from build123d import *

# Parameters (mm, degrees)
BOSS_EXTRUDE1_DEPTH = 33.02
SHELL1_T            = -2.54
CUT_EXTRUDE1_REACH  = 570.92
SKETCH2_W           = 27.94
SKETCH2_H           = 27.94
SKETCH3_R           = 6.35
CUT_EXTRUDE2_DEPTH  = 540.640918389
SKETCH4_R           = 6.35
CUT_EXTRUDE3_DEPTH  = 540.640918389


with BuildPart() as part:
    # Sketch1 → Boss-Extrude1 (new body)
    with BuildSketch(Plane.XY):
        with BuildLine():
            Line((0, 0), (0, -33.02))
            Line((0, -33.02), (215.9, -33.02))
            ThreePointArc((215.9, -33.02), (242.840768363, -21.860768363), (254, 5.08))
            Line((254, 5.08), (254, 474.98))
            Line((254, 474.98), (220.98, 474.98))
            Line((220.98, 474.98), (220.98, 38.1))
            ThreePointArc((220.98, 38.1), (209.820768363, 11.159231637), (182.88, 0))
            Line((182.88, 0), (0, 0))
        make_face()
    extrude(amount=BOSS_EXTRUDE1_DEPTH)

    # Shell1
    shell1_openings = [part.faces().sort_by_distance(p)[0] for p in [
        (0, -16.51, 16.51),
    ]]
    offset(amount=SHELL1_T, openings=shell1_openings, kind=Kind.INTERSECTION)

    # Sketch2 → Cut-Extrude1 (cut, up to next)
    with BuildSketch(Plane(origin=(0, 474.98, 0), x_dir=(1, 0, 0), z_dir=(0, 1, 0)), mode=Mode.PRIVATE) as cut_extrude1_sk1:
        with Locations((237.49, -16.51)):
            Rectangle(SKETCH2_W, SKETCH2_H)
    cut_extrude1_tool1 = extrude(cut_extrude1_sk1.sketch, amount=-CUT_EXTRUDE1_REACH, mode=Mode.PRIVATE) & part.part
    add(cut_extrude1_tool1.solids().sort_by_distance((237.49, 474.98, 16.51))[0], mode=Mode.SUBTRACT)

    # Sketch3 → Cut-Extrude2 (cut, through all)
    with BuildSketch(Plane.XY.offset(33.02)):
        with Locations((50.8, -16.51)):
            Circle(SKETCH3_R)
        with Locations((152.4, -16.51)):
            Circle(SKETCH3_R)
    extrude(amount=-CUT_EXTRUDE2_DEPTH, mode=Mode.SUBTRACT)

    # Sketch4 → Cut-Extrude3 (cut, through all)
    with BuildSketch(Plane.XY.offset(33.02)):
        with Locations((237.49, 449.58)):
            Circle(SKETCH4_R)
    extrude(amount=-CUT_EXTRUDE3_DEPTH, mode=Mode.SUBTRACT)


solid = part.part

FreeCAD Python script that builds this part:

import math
import FreeCAD as App
import Part
import Sketcher
Q = App.Units.Quantity


def faces_at(feature, points):
    """Names of the faces that lie closest to the given points."""
    faces = feature.Shape.Faces
    near = lambda p: min(range(len(faces)), key=lambda i: faces[i].distToShape(Part.Vertex(*p))[0])
    return sorted({f"Face{near(p) + 1}" for p in points})


def add_polygon(sketch, points):
    """Adds a closed chain of lines whose ends are joined by coincident constraints."""
    first, n = sketch.GeometryCount, len(points)
    for a, b in zip(points, points[1:] + points[:1]):
        sketch.addGeometry(Part.LineSegment(App.Vector(*a, 0), App.Vector(*b, 0)), False)
    for i in range(n):
        sketch.addConstraint(Sketcher.Constraint("Coincident", first + i, 2, first + (i + 1) % n, 1))

doc = App.newDocument("Part")
body = doc.addObject("PartDesign::Body", "Body")

# Sketch on XY plane
sketch1 = body.newObject("Sketcher::SketchObject", "Sketch")
sketch1.AttachmentSupport = (doc.getObject("XY_Plane"), [""])
sketch1.MapMode = "FlatFace"
sketch1.addGeometry(Part.LineSegment(App.Vector(0, 0, 0), App.Vector(0, -33, 0)), False)
sketch1.addGeometry(Part.LineSegment(App.Vector(0, -33, 0), App.Vector(216, -33, 0)), False)
sketch1.addGeometry(Part.ArcOfCircle(Part.Circle(App.Vector(216, 5, 0), App.Vector(0, 0, 1), 38), math.radians(-90), math.radians(0)), False)
sketch1.addGeometry(Part.LineSegment(App.Vector(254, 5, 0), App.Vector(254, 475, 0)), False)
sketch1.addGeometry(Part.LineSegment(App.Vector(254, 475, 0), App.Vector(221, 475, 0)), False)
sketch1.addGeometry(Part.LineSegment(App.Vector(221, 475, 0), App.Vector(221, 38, 0)), False)
sketch1.addGeometry(Part.ArcOfCircle(Part.Circle(App.Vector(183, 38, 0), App.Vector(0, 0, 1), 38), math.radians(-90), math.radians(0)), False)
sketch1.addGeometry(Part.LineSegment(App.Vector(183, 0, 0), App.Vector(0, 0, 0)), False)
sketch1.addConstraint(Sketcher.Constraint("Coincident", 0, 2, 1, 1))
sketch1.addConstraint(Sketcher.Constraint("Tangent", 1, 2, 2, 1))
sketch1.addConstraint(Sketcher.Constraint("Tangent", 2, 2, 3, 1))
sketch1.addConstraint(Sketcher.Constraint("Coincident", 3, 2, 4, 1))
sketch1.addConstraint(Sketcher.Constraint("Coincident", 4, 2, 5, 1))
sketch1.addConstraint(Sketcher.Constraint("Tangent", 5, 2, 6, 2))
sketch1.addConstraint(Sketcher.Constraint("Tangent", 6, 1, 7, 1))
sketch1.addConstraint(Sketcher.Constraint("Coincident", 7, 2, 0, 1))
sketch1.addConstraint(Sketcher.Constraint("Vertical", 0))
sketch1.addConstraint(Sketcher.Constraint("Horizontal", 1))
sketch1.addConstraint(Sketcher.Constraint("Vertical", 3))
sketch1.addConstraint(Sketcher.Constraint("Horizontal", 4))
sketch1.addConstraint(Sketcher.Constraint("Vertical", 5))
sketch1.addConstraint(Sketcher.Constraint("Horizontal", 7))
sketch1.addConstraint(Sketcher.Constraint("Coincident", 7, 2, -1, 1))
sketch1.addConstraint(Sketcher.Constraint("Equal", 2, 6))
sketch1.addConstraint(Sketcher.Constraint("Equal", 4, 0))
sketch1.addConstraint(Sketcher.Constraint("Radius", 2, Q("1.5 in")))
sketch1.addConstraint(Sketcher.Constraint("DistanceX", 1, 1, 1, 2, Q("8.5 in")))
sketch1.addConstraint(Sketcher.Constraint("DistanceX", 4, 2, 4, 1, Q("1.3 in")))
sketch1.addConstraint(Sketcher.Constraint("DistanceY", 3, 1, 3, 2, Q("18.5 in")))
pad1 = body.newObject("PartDesign::Pad", "Pad")
pad1.Profile = sketch1
pad1.Length = Q("1.3 in")
doc.recompute()

thickness = body.newObject("PartDesign::Thickness", "Thickness")
thickness.Base = (pad1, faces_at(pad1, [(0, -16.51, 16.51)]))
thickness.Value = Q("0.1 in")
thickness.Reversed = True
thickness.Join = "Intersection"

# Sketch on XZ plane
sketch2 = body.newObject("Sketcher::SketchObject", "Sketch001")
sketch2.AttachmentSupport = (doc.getObject("XZ_Plane"), [""])
sketch2.MapMode = "FlatFace"
sketch2.AttachmentOffset = App.Placement(App.Vector(0, 0, -18.7 * 25.4), App.Rotation())
add_polygon(sketch2, [(224, 3), (224, 30), (251, 30), (251, 3)])  # lines 0-3
sketch2.addConstraint(Sketcher.Constraint("Vertical", 0))
sketch2.addConstraint(Sketcher.Constraint("Horizontal", 1))
sketch2.addConstraint(Sketcher.Constraint("Vertical", 2))
sketch2.addConstraint(Sketcher.Constraint("Horizontal", 3))
sketch2.addConstraint(Sketcher.Constraint("Equal", 3, 0))
sketch2.addConstraint(Sketcher.Constraint("DistanceX", 1, 1, 1, 2, Q("1.1 in")))
sketch2.addConstraint(Sketcher.Constraint("DistanceX", -1, 1, 0, 2, Q("8.8 in")))
sketch2.addConstraint(Sketcher.Constraint("DistanceY", -1, 1, 0, 2, Q("1.2 in")))
pocket1 = body.newObject("PartDesign::Pocket", "Pocket")
pocket1.Profile = sketch2
pocket1.Type = "UpToFirst"
pocket1.Reversed = True

# Sketch on XY plane
sketch3 = body.newObject("Sketcher::SketchObject", "Sketch002")
sketch3.AttachmentSupport = (doc.getObject("XY_Plane"), [""])
sketch3.MapMode = "FlatFace"
sketch3.AttachmentOffset = App.Placement(App.Vector(0, 0, 1.3 * 25.4), App.Rotation())
sketch3.addGeometry(Part.Circle(App.Vector(51, -17, 0), App.Vector(0, 0, 1), 6), False)
sketch3.addGeometry(Part.Circle(App.Vector(152, -17, 0), App.Vector(0, 0, 1), 6), False)
sketch3.addConstraint(Sketcher.Constraint("Equal", 0, 1))
sketch3.addConstraint(Sketcher.Constraint("Horizontal", 0, 3, 1, 3))
sketch3.addConstraint(Sketcher.Constraint("Diameter", 0, Q("0.5 in")))
sketch3.addConstraint(Sketcher.Constraint("DistanceX", -1, 1, 0, 3, Q("2 in")))
sketch3.addConstraint(Sketcher.Constraint("DistanceX", -1, 1, 1, 3, Q("6 in")))
sketch3.addConstraint(Sketcher.Constraint("DistanceY", 0, 3, -1, 1, Q("0.65 in")))
pocket2 = body.newObject("PartDesign::Pocket", "Pocket001")
pocket2.Profile = sketch3
pocket2.Type = "ThroughAll"

# Sketch on XY plane
sketch4 = body.newObject("Sketcher::SketchObject", "Sketch003")
sketch4.AttachmentSupport = (doc.getObject("XY_Plane"), [""])
sketch4.MapMode = "FlatFace"
sketch4.AttachmentOffset = App.Placement(App.Vector(0, 0, 1.3 * 25.4), App.Rotation())
sketch4.addGeometry(Part.Circle(App.Vector(237, 450, 0), App.Vector(0, 0, 1), 6), False)
sketch4.addConstraint(Sketcher.Constraint("Diameter", 0, Q("0.5 in")))
sketch4.addConstraint(Sketcher.Constraint("DistanceY", -1, 1, 0, 3, Q("17.7 in")))
sketch4.addConstraint(Sketcher.Constraint("DistanceX", -1, 1, 0, 3, Q("9.35 in")))
pocket3 = body.newObject("PartDesign::Pocket", "Pocket002")
pocket3.Profile = sketch4
pocket3.Type = "ThroughAll"

doc.recompute()
